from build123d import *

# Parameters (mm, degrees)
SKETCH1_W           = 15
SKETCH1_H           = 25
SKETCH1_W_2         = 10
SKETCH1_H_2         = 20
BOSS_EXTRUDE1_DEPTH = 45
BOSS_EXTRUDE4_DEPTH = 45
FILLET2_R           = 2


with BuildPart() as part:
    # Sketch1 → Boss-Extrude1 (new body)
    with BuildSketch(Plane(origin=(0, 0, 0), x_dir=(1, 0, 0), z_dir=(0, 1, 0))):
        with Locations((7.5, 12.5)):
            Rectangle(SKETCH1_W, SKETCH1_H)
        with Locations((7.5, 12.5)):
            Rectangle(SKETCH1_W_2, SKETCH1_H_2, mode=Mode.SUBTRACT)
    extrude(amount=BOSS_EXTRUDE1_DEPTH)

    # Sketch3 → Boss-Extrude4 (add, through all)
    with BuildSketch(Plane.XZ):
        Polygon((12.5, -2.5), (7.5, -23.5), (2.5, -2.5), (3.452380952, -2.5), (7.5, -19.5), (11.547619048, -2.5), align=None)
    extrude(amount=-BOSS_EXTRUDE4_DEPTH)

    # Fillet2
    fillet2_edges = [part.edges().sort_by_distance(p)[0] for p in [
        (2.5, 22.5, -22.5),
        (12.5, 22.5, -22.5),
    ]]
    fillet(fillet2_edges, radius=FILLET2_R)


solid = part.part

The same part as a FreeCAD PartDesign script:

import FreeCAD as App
import Part
import Sketcher

V = App.Vector


def edges_at(feature, points):
    """Names of the edges that pass closest to the given points."""
    edges = feature.Shape.Edges
    near = lambda p: min(range(len(edges)), key=lambda i: edges[i].distToShape(Part.Vertex(*p))[0])
    return sorted({f"Edge{near(p) + 1}" for p in points})


def add_polygon(sketch, points):
    """Adds a closed chain of lines whose ends are joined by coincident constraints."""
    first, n = sketch.GeometryCount, len(points)
    for a, b in zip(points, points[1:] + points[:1]):
        sketch.addGeometry(Part.LineSegment(App.Vector(*a, 0), App.Vector(*b, 0)), False)
    for i in range(n):
        sketch.addConstraint(Sketcher.Constraint("Coincident", first + i, 2, first + (i + 1) % n, 1))

doc = App.newDocument("Part")
body = doc.addObject("PartDesign::Body", "Body")

sketch1 = body.newObject("Sketcher::SketchObject", "Sketch")
sketch1.AttachmentSupport = (doc.getObject("XZ_Plane"), [""])
sketch1.MapMode = "FlatFace"
add_polygon(sketch1, [(0, -25), (0, 0), (15, 0), (15, -25)])
add_polygon(sketch1, [(12, -2), (2, -2), (2, -22), (12, -22)])
sketch1.addConstraint([
    Sketcher.Constraint("Vertical", 0),
    Sketcher.Constraint("Horizontal", 1),
    Sketcher.Constraint("Vertical", 2),
    Sketcher.Constraint("Horizontal", 3),
    Sketcher.Constraint("Horizontal", 4),
    Sketcher.Constraint("Vertical", 5),
    Sketcher.Constraint("Horizontal", 6),
    Sketcher.Constraint("Vertical", 7),
    Sketcher.Constraint("Coincident", 0, 2, -1, 1),
    Sketcher.Constraint("DistanceX", 1, 1, 1, 2, 15.0),
    Sketcher.Constraint("DistanceX", 4, 2, 4, 1, 10.0),
    Sketcher.Constraint("DistanceY", 0, 1, 0, 2, 25.0),
    Sketcher.Constraint("DistanceY", 5, 2, 5, 1, 20.0),
    Sketcher.Constraint("DistanceX", -1, 1, 4, 2, 2.5),
    Sketcher.Constraint("DistanceY", 4, 2, -1, 1, 2.5),
])
pad1 = body.newObject("PartDesign::Pad", "Pad")
pad1.Profile = sketch1
pad1.Length = 45
pad1.Reversed = True

sketch2 = body.newObject("Sketcher::SketchObject", "Sketch001")
sketch2.AttachmentSupport = (doc.getObject("XZ_Plane"), [""])
sketch2.MapMode = "FlatFace"
add_polygon(sketch2, [(7.5, -23.5), (12.5, -2.5), (11.5, -2.5), (7.5, -19.5), (3.5, -2.5), (2.5, -2.5)])
sketch2.addConstraint([
    Sketcher.Constraint("Horizontal", 1),
    Sketcher.Constraint("Horizontal", 4),
    Sketcher.Constraint("Parallel", 0, 2),
    Sketcher.Constraint("Parallel", 3, 5),
    Sketcher.Constraint("Horizontal", 1, 2, 3, 2),
    Sketcher.Constraint("Vertical", 2, 2, 5, 2),
    Sketcher.Constraint("Equal", 1, 4),
    Sketcher.Constraint("DistanceY", 2, 2, 1, 2, 17.0),
    Sketcher.Constraint("DistanceX", 2, 2, 0, 2, 5.0),
    Sketcher.Constraint("DistanceY", 5, 2, 2, 2, 4.0),
    Sketcher.Constraint("DistanceX", -1, 1, 0, 2, 12.5),
    Sketcher.Constraint("DistanceY", 0, 2, -1, 1, 2.5),
])
pad2 = body.newObject("PartDesign::Pad", "Pad001")
pad2.Profile = sketch2
pad2.Length = 45
pad2.Reversed = True
doc.recompute()

fillet = body.newObject("PartDesign::Fillet", "Fillet")
fillet.Base = (pad2, edges_at(pad2, [(2.5, 22.5, -22.5), (12.5, 22.5, -22.5)]))
fillet.Radius = 2

doc.recompute()
